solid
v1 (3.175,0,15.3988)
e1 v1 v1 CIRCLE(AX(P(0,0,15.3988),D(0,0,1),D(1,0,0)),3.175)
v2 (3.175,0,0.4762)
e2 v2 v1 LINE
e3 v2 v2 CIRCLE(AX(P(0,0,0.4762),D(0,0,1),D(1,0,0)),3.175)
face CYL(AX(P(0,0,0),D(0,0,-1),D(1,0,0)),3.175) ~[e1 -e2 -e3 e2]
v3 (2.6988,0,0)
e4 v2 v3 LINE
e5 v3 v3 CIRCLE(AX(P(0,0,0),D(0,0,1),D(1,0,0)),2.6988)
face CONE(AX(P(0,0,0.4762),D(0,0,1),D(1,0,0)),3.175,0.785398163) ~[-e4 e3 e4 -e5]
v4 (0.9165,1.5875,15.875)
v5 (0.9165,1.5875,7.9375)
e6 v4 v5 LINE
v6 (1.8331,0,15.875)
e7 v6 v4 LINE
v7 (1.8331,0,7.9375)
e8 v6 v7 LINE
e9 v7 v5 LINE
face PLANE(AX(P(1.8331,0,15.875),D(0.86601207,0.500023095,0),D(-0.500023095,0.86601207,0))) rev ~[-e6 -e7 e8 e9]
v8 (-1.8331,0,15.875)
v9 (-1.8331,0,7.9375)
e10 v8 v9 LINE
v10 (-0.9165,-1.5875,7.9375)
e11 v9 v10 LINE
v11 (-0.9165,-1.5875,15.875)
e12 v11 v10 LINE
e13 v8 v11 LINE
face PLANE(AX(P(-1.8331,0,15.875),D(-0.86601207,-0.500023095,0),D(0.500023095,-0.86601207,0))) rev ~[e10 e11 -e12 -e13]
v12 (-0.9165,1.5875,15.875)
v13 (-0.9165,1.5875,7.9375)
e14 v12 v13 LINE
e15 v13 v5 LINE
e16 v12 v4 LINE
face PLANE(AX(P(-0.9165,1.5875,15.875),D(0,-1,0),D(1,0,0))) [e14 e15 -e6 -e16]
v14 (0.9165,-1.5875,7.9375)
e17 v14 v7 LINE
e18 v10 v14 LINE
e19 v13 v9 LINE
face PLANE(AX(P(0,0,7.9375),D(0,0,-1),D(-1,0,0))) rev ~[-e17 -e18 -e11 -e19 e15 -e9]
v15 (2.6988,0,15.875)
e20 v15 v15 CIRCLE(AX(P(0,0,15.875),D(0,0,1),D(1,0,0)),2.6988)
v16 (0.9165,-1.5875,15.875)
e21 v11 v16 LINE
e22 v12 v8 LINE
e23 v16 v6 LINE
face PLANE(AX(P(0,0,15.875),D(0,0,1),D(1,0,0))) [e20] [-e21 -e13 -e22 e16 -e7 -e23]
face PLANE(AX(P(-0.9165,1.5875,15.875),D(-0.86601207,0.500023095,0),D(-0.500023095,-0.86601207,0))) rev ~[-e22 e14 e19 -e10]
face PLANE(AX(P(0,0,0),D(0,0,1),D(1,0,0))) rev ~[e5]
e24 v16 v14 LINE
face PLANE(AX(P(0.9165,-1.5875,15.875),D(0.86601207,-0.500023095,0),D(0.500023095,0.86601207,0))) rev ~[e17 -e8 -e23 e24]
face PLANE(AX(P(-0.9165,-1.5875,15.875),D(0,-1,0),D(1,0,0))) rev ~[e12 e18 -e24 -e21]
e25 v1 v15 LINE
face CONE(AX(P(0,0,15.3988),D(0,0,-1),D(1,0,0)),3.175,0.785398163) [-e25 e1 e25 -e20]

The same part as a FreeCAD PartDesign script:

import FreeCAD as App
import Part
import Sketcher
from FreeCAD import Vector
Q = App.Units.Quantity


def edges_at(feature, points):
    """Names of the edges that pass closest to the given points."""
    edges = feature.Shape.Edges
    near = lambda p: min(range(len(edges)), key=lambda i: edges[i].distToShape(Part.Vertex(*p))[0])
    return sorted({f"Edge{near(p) + 1}" for p in points})

doc = App.newDocument("Part")
body = doc.addObject("PartDesign::Body", "Body")

# Sketch on XY plane
sketch1 = body.newObject("Sketcher::SketchObject", "Sketch")
sketch1.AttachmentSupport = (doc.getObject("XY_Plane"), [""])
sketch1.MapMode = "FlatFace"
sketch1.addGeometry(Part.Circle(Vector(0, 0, 0), Vector(0, 0, 1), 3.2), False)
sketch1.addConstraint(Sketcher.Constraint("Coincident", 0, 3, -1, 1))
sketch1.addConstraint(Sketcher.Constraint("Diameter", 0, Q("0.25 in")))
pad1 = body.newObject("PartDesign::Pad", "Pad")
pad1.Profile = sketch1
pad1.Length = Q("0.625 in")
doc.recompute()

chamfer = body.newObject("PartDesign::Chamfer", "Chamfer")
chamfer.Base = (pad1, edges_at(pad1, [(-3.175, 0, 0), (-3.175, 0, 15.875)]))
chamfer.Size = 0.4762

# Sketch on XY plane
sketch2 = body.newObject("Sketcher::SketchObject", "Sketch001")
sketch2.AttachmentSupport = (doc.getObject("XY_Plane"), [""])
sketch2.MapMode = "FlatFace"
sketch2.AttachmentOffset = App.Placement(Vector(0, 0, 0.625 * 25.4), App.Rotation())
sketch2.addGeometry(Part.LineSegment(Vector(0.9, 1.6, 0), Vector(-0.9, 1.6, 0)), False)
sketch2.addGeometry(Part.LineSegment(Vector(-0.9, 1.6, 0), Vector(-1.8, 0, 0)), False)
sketch2.addGeometry(Part.LineSegment(Vector(-1.8, 0, 0), Vector(-0.9, -1.6, 0)), False)
sketch2.addGeometry(Part.LineSegment(Vector(-0.9, -1.6, 0), Vector(0.9, -1.6, 0)), False)
sketch2.addGeometry(Part.LineSegment(Vector(0.9, -1.6, 0), Vector(1.8, 0, 0)), False)
sketch2.addGeometry(Part.LineSegment(Vector(1.8, 0, 0), Vector(0.9, 1.6, 0)), False)
sketch2.addConstraint(Sketcher.Constraint("Coincident", 0, 2, 1, 1))
sketch2.addConstraint(Sketcher.Constraint("Coincident", 1, 2, 2, 1))
sketch2.addConstraint(Sketcher.Constraint("Coincident", 2, 2, 3, 1))
sketch2.addConstraint(Sketcher.Constraint("Coincident", 3, 2, 4, 1))
sketch2.addConstraint(Sketcher.Constraint("Coincident", 4, 2, 5, 1))
sketch2.addConstraint(Sketcher.Constraint("Coincident", 5, 2, 0, 1))
sketch2.addConstraint(Sketcher.Constraint("Horizontal", 0))
sketch2.addConstraint(Sketcher.Constraint("Horizontal", 3))
sketch2.addConstraint(Sketcher.Constraint("Symmetric", 0, 2, 3, 2, -1, 1))
sketch2.addConstraint(Sketcher.Constraint("Symmetric", 1, 2, 4, 2, -1, 1))
sketch2.addConstraint(Sketcher.Constraint("PointOnObject", 1, 2, -1))
sketch2.addConstraint(Sketcher.Constraint("Parallel", 2, 5))
sketch2.addConstraint(Sketcher.Constraint("Vertical", 0, 2, 2, 2))
sketch2.addConstraint(Sketcher.Constraint("DistanceY", -1, 1, 0, 2, Q("0.0625 in")))
sketch2.addConstraint(Sketcher.Constraint("DistanceX", 0, 2, 0, 1, 1.833))
sketch2.addConstraint(Sketcher.Constraint("Distance", 1, 1.833))
pocket1 = body.newObject("PartDesign::Pocket", "Pocket")
pocket1.Profile = sketch2
pocket1.Length = Q("0.3125 in")

doc.recompute()
